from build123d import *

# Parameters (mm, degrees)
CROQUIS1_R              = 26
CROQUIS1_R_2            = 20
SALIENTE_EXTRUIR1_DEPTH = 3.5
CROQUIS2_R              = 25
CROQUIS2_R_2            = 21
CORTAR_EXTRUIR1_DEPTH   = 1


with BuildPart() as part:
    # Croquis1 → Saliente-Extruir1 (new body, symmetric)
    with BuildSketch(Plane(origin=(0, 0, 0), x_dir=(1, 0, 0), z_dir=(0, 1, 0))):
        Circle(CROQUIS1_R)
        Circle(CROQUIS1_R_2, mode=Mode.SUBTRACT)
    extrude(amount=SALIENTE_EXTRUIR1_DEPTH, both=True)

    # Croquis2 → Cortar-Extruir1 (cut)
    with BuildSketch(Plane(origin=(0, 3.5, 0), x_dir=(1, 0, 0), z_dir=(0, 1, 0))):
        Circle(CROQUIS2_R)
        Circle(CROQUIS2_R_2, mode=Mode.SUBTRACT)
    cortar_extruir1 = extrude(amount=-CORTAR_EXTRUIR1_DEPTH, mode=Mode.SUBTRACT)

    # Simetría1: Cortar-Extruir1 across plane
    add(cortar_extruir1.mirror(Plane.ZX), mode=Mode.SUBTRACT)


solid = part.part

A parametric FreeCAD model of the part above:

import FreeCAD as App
import Part
import Sketcher
from FreeCAD import Vector
Q = App.Units.Quantity

doc = App.newDocument("Part")
body = doc.addObject("PartDesign::Body", "Body")

sketch1 = body.newObject("Sketcher::SketchObject", "Sketch")
sketch1.AttachmentSupport = (doc.getObject("XZ_Plane"), [""])
sketch1.MapMode = "FlatFace"
sketch1.addGeometry([
    Part.Circle(Vector(0, 0, 0), Vector(0, 0, 1), 26),
    Part.Circle(Vector(0, 0, 0), Vector(0, 0, 1), 20),
], False)
sketch1.addConstraint([
    Sketcher.Constraint("Coincident", 0, 3, -1, 1),
    Sketcher.Constraint("Coincident", 1, 3, -1, 1),
    Sketcher.Constraint("Diameter", 0, Q("52 mm")),
    Sketcher.Constraint("Diameter", 1, Q("40 mm")),
])
pad1 = body.newObject("PartDesign::Pad", "Pad")
pad1.Profile = sketch1
pad1.Length = 7
pad1.Midplane = True

sketch2 = body.newObject("Sketcher::SketchObject", "Sketch001")
sketch2.AttachmentSupport = (doc.getObject("XZ_Plane"), [""])
sketch2.MapMode = "FlatFace"
sketch2.AttachmentOffset = App.Placement(Vector(0, 0, -3.5), App.Rotation())
sketch2.addGeometry([
    Part.Circle(Vector(0, 0, 0), Vector(0, 0, 1), 25),
    Part.Circle(Vector(0, 0, 0), Vector(0, 0, 1), 21),
], False)
sketch2.addConstraint([
    Sketcher.Constraint("Coincident", 0, 3, -1, 1),
    Sketcher.Constraint("Coincident", 1, 3, -1, 1),
    Sketcher.Constraint("Diameter", 0, Q("50 mm")),
    Sketcher.Constraint("Diameter", 1, Q("42 mm")),
])
pocket1 = body.newObject("PartDesign::Pocket", "Pocket")
pocket1.Profile = sketch2
pocket1.Length = 1
pocket1.Reversed = True
doc.recompute()

mirrored = body.newObject("PartDesign::Mirrored", "Mirrored")
mirrored.Originals = [pocket1]
mirrored.MirrorPlane = (doc.getObject("XZ_Plane"), [""])
body.Tip = mirrored

doc.recompute()
